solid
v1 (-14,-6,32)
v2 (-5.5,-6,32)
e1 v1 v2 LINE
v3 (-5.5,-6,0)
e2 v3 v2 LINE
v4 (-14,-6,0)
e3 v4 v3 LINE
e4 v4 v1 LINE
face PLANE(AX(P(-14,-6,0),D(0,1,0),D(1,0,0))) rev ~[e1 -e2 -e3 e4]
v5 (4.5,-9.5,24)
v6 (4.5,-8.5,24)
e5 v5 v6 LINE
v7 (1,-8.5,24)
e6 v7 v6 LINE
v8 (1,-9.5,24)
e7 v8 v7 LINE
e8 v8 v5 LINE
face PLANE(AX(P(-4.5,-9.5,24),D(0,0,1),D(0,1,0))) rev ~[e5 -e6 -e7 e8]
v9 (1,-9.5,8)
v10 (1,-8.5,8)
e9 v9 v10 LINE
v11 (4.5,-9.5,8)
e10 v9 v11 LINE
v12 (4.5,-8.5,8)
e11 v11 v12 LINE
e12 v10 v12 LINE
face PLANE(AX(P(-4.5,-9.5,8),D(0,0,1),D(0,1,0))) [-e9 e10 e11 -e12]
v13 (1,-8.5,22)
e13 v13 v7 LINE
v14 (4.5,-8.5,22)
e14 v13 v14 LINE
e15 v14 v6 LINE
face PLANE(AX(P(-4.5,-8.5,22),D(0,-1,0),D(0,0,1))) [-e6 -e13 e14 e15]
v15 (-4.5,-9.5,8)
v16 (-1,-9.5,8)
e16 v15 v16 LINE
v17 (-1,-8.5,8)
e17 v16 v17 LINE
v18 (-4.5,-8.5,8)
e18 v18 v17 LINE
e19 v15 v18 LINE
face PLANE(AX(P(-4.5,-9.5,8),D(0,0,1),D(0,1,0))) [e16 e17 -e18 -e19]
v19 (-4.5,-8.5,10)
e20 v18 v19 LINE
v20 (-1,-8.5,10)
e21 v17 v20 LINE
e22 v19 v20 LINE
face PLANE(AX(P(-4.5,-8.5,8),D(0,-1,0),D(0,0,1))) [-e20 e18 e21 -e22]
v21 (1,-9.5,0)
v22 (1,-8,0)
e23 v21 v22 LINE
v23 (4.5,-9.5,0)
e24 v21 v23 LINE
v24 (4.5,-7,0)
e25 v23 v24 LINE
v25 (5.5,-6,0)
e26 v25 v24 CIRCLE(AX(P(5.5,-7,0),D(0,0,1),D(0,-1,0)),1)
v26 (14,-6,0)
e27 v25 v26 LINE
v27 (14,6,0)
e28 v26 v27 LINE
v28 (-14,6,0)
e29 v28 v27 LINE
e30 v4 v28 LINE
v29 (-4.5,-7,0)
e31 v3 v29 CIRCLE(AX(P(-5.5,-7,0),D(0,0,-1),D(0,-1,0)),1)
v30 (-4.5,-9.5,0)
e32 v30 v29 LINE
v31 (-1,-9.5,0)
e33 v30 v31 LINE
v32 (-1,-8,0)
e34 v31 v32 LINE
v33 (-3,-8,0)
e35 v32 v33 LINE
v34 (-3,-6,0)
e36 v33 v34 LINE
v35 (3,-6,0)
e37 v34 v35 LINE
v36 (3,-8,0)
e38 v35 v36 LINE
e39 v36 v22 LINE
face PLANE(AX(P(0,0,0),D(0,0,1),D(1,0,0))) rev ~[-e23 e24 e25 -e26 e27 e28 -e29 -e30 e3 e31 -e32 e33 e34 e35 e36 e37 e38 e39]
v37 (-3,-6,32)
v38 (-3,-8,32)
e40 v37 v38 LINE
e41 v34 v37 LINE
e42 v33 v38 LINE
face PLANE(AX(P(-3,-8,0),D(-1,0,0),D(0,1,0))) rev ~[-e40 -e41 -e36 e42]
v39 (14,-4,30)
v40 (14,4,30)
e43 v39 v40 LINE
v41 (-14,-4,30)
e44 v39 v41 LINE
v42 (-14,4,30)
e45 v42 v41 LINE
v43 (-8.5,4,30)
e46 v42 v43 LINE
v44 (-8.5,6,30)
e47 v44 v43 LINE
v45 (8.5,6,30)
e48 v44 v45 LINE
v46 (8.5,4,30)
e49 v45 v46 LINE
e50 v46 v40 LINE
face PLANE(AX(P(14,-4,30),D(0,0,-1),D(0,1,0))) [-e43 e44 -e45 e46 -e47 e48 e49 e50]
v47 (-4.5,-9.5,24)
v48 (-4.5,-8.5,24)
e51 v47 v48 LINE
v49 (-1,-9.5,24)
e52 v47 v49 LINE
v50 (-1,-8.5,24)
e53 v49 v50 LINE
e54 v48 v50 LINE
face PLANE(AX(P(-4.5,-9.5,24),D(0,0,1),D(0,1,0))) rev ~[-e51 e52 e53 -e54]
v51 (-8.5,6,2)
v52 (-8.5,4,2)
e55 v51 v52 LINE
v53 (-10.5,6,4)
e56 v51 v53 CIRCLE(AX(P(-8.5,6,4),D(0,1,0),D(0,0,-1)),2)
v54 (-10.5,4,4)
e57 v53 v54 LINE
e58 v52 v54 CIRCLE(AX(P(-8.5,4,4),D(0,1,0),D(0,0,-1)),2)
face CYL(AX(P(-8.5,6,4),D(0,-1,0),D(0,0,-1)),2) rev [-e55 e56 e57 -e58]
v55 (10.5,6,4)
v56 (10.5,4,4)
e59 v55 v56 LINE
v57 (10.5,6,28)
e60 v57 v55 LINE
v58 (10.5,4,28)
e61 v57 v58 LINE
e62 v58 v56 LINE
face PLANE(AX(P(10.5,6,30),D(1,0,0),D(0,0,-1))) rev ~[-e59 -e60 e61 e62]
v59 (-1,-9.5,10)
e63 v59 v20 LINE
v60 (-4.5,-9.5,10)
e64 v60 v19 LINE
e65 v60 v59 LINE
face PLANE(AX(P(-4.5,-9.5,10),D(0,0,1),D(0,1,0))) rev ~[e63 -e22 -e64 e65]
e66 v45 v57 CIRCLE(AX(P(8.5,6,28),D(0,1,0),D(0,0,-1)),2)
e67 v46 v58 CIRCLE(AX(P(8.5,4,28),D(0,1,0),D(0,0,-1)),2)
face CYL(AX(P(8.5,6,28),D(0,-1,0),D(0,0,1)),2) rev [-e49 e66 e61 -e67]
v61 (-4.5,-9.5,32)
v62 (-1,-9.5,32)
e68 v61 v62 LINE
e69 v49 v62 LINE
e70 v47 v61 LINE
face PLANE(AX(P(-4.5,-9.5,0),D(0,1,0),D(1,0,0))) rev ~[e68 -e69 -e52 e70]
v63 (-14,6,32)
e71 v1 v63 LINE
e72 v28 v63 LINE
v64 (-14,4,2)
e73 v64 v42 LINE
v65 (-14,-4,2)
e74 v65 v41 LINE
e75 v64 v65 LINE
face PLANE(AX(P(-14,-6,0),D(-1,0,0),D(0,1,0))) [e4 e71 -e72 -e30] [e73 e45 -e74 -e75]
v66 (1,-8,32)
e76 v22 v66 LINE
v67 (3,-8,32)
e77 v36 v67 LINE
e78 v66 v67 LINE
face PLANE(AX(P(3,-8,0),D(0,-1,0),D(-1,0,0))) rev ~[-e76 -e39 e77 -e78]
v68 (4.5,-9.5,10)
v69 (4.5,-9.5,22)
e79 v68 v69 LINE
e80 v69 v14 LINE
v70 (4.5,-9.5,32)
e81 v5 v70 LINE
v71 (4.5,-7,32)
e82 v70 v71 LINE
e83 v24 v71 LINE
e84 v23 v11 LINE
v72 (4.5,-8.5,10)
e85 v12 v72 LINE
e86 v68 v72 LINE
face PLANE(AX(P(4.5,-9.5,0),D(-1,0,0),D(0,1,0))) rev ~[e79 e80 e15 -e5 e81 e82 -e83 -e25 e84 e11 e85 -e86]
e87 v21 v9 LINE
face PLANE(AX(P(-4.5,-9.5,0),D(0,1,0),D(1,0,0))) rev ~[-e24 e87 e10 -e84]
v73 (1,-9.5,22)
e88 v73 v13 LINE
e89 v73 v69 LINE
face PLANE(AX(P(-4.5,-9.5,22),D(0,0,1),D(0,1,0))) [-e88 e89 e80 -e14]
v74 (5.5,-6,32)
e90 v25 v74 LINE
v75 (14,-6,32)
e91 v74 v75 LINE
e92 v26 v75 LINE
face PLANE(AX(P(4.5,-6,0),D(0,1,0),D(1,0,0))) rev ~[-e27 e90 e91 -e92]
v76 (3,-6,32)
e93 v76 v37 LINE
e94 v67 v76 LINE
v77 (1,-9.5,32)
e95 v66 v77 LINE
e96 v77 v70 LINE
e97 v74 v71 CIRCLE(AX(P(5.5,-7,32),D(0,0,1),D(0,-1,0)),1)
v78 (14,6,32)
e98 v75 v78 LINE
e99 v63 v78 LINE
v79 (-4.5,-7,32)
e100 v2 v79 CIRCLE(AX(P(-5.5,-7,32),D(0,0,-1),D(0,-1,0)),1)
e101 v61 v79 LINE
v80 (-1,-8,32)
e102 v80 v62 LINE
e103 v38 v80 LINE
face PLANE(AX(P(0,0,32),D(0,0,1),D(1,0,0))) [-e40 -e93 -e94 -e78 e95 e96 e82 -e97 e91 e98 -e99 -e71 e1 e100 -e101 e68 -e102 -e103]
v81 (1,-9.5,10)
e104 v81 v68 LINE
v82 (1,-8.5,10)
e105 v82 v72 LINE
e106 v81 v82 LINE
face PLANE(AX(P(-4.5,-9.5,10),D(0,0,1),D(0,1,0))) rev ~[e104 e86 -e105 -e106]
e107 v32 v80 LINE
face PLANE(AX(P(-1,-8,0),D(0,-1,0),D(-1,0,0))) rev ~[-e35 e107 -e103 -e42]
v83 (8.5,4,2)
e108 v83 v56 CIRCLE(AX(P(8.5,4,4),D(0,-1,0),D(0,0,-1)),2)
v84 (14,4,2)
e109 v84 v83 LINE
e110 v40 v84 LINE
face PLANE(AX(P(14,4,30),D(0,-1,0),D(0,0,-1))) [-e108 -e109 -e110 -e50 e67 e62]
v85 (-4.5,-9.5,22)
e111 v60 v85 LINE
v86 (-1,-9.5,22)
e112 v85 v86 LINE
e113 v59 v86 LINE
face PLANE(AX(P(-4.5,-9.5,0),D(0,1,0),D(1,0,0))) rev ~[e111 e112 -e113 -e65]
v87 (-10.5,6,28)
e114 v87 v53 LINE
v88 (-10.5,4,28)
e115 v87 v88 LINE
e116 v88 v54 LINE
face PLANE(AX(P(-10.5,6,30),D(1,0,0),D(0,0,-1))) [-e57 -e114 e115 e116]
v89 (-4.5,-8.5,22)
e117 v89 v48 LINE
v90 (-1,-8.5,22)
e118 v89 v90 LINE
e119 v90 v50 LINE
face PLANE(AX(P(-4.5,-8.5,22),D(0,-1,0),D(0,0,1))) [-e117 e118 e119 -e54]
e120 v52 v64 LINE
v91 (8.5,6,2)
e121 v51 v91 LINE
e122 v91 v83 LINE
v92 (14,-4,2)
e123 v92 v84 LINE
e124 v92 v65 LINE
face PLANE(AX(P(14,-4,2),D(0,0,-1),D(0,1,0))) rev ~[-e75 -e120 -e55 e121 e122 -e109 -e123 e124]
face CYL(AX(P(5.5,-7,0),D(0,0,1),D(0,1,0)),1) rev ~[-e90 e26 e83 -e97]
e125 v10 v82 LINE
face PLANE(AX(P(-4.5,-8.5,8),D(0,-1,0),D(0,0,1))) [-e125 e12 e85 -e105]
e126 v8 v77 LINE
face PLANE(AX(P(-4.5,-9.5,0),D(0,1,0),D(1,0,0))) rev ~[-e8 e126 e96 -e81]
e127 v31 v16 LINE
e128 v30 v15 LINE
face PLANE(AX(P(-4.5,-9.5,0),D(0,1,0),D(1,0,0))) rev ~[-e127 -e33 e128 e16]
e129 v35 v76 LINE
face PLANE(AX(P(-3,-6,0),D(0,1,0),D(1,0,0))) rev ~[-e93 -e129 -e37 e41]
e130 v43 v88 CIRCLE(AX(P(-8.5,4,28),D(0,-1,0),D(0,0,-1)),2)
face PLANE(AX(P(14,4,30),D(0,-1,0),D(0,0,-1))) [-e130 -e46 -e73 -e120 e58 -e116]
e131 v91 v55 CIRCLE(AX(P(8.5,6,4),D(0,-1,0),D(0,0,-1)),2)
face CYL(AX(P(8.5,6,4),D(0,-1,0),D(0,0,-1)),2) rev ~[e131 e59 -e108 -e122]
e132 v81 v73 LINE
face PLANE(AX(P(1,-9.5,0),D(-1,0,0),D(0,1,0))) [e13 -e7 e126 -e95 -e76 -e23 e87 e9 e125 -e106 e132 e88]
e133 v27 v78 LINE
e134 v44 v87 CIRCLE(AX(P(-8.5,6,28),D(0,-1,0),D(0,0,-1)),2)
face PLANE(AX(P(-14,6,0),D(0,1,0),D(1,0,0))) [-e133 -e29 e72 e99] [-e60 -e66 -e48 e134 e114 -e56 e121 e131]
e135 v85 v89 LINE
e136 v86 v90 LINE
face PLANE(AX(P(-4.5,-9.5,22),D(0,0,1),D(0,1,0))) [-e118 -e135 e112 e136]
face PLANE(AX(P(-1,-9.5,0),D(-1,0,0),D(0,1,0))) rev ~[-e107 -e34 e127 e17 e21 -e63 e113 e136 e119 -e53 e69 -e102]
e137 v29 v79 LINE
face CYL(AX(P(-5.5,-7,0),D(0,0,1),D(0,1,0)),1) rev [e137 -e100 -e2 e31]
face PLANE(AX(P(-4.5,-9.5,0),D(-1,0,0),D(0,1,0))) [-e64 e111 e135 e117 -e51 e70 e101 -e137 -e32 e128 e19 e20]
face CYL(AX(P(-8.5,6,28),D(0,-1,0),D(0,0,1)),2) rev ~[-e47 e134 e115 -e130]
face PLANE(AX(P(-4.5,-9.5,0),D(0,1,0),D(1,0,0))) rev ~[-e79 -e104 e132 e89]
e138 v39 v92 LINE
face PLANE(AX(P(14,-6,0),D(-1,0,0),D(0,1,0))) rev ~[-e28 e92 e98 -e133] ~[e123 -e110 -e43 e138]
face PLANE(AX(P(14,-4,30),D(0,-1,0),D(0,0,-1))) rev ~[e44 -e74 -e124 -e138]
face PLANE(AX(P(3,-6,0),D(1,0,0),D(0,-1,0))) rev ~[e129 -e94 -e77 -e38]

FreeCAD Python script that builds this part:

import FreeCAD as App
import Part
import Sketcher
Q = App.Units.Quantity


def edges_at(feature, points):
    """Names of the edges that pass closest to the given points."""
    edges = feature.Shape.Edges
    near = lambda p: min(range(len(edges)), key=lambda i: edges[i].distToShape(Part.Vertex(*p))[0])
    return sorted({f"Edge{near(p) + 1}" for p in points})


def add_polygon(sketch, points):
    """Adds a closed chain of lines whose ends are joined by coincident constraints."""
    first, n = sketch.GeometryCount, len(points)
    for a, b in zip(points, points[1:] + points[:1]):
        sketch.addGeometry(Part.LineSegment(App.Vector(*a, 0), App.Vector(*b, 0)), False)
    for i in range(n):
        sketch.addConstraint(Sketcher.Constraint("Coincident", first + i, 2, first + (i + 1) % n, 1))

doc = App.newDocument("Part")
body = doc.addObject("PartDesign::Body", "Body")

# Sketch on XY plane
sketch1 = doc.addObject("Sketcher::SketchObject", "Sketch")
body.addObject(sketch1)
sketch1.AttachmentSupport = (doc.XY_Plane, [""])
sketch1.MapMode = "FlatFace"
add_polygon(sketch1, [(-14, 6), (-14, -6), (-4.5, -6), (-4.5, -9.5), (4.5, -9.5), (4.5, -6), (14, -6), (14, 6)])  # lines 0-7
sketch1.addConstraint([
    Sketcher.Constraint("Vertical", 0),
    Sketcher.Constraint("Horizontal", 1),
    Sketcher.Constraint("Vertical", 2),
    Sketcher.Constraint("Horizontal", 3),
    Sketcher.Constraint("Vertical", 4),
    Sketcher.Constraint("Horizontal", 5),
    Sketcher.Constraint("Vertical", 6),
    Sketcher.Constraint("Horizontal", 7),
    Sketcher.Constraint("Symmetric", 0, 2, 6, 2, -1, 1),
    Sketcher.Constraint("Symmetric", 1, 2, 4, 2, -2),
    Sketcher.Constraint("DistanceX", 3, 1, 3, 2, Q("9 mm")),
    Sketcher.Constraint("DistanceX", 7, 2, 7, 1, Q("28 mm")),
    Sketcher.Constraint("DistanceY", 0, 2, 0, 1, Q("12 mm")),
    Sketcher.Constraint("DistanceY", 2, 2, 2, 1, Q("3.5 mm")),
])
pad1 = doc.addObject("PartDesign::Pad", "Pad")
body.addObject(pad1)
pad1.Profile = sketch1
pad1.Length = 32

# Sketch on XY plane
sketch2 = doc.addObject("Sketcher::SketchObject", "Sketch001")
body.addObject(sketch2)
sketch2.AttachmentSupport = (doc.XY_Plane, [""])
sketch2.MapMode = "FlatFace"
add_polygon(sketch2, [(3, -6), (3, -8), (1, -8), (1, -9.5), (-1, -9.5), (-1, -8), (-3, -8), (-3, -6)])  # lines 0-7
sketch2.addConstraint([
    Sketcher.Constraint("Vertical", 0),
    Sketcher.Constraint("Horizontal", 1),
    Sketcher.Constraint("Vertical", 2),
    Sketcher.Constraint("Horizontal", 3),
    Sketcher.Constraint("Vertical", 4),
    Sketcher.Constraint("Horizontal", 5),
    Sketcher.Constraint("Vertical", 6),
    Sketcher.Constraint("Horizontal", 7),
    Sketcher.Constraint("Symmetric", 1, 2, 4, 2, -2),
    Sketcher.Constraint("Equal", 1, 3),
    Sketcher.Constraint("Equal", 3, 5),
    Sketcher.Constraint("Equal", 5, 0),
    Sketcher.Constraint("DistanceX", 1, 2, 1, 1, Q("2 mm")),
    Sketcher.Constraint("DistanceY", 2, 2, 2, 1, Q("1.5 mm")),
    Sketcher.Constraint("DistanceY", 0, 2, -1, 1, Q("8 mm")),
])
pocket1 = doc.addObject("PartDesign::Pocket", "Pocket")
body.addObject(pocket1)
pocket1.Profile = sketch2
pocket1.Type = "ThroughAll"
pocket1.Reversed = True

# Sketch on YZ plane
sketch3 = doc.addObject("Sketcher::SketchObject", "Sketch002")
body.addObject(sketch3)
sketch3.AttachmentSupport = (doc.YZ_Plane, [""])
sketch3.MapMode = "FlatFace"
sketch3.AttachmentOffset = App.Placement(App.Vector(0, 0, -4.5), App.Rotation())
add_polygon(sketch3, [(-8.5, 8), (-9.5, 8), (-9.5, 10), (-8.5, 10)])  # lines 0-3
add_polygon(sketch3, [(-8.5, 22), (-9.5, 22), (-9.5, 24), (-8.5, 24)])  # lines 4-7
sketch3.addConstraint([
    Sketcher.Constraint("Horizontal", 0),
    Sketcher.Constraint("Vertical", 1),
    Sketcher.Constraint("Horizontal", 2),
    Sketcher.Constraint("Vertical", 3),
    Sketcher.Constraint("Horizontal", 4),
    Sketcher.Constraint("Vertical", 5),
    Sketcher.Constraint("Horizontal", 6),
    Sketcher.Constraint("Vertical", 7),
    Sketcher.Constraint("Vertical", 1, 2, 4, 2),
    Sketcher.Constraint("Vertical", 3, 2, 6, 2),
    Sketcher.Constraint("Equal", 3, 5),
    Sketcher.Constraint("DistanceX", 0, 2, 0, 1, Q("1 mm")),
    Sketcher.Constraint("DistanceY", 1, 1, 1, 2, Q("2 mm")),
    Sketcher.Constraint("DistanceY", -1, 1, 0, 2, Q("8 mm")),
    Sketcher.Constraint("DistanceY", -1, 1, 4, 2, Q("22 mm")),
    Sketcher.Constraint("DistanceX", 0, 2, -1, 1, Q("9.5 mm")),
])
pocket2 = doc.addObject("PartDesign::Pocket", "Pocket001")
body.addObject(pocket2)
pocket2.Profile = sketch3
pocket2.Type = "ThroughAll"
pocket2.Reversed = True
doc.recompute()

fillet = doc.addObject("PartDesign::Fillet", "Fillet")
body.addObject(fillet)
fillet.Base = (pocket2, edges_at(pocket2, [(4.5, -6, 16), (-4.5, -6, 16)]))
fillet.Radius = 1

# Sketch on YZ plane
sketch4 = doc.addObject("Sketcher::SketchObject", "Sketch003")
body.addObject(sketch4)
sketch4.AttachmentSupport = (doc.YZ_Plane, [""])
sketch4.MapMode = "FlatFace"
sketch4.AttachmentOffset = App.Placement(App.Vector(0, 0, 14), App.Rotation())
add_polygon(sketch4, [(4, 30), (-4, 30), (-4, 2), (4, 2)])  # lines 0-3
sketch4.addConstraint([
    Sketcher.Constraint("Horizontal", 0),
    Sketcher.Constraint("Vertical", 1),
    Sketcher.Constraint("Horizontal", 2),
    Sketcher.Constraint("Vertical", 3),
    Sketcher.Constraint("DistanceX", 0, 2, 0, 1, Q("8 mm")),
    Sketcher.Constraint("DistanceY", 1, 2, 1, 1, Q("28 mm")),
    Sketcher.Constraint("DistanceX", 0, 2, -1, 1, Q("4 mm")),
    Sketcher.Constraint("DistanceY", -1, 1, 0, 2, Q("30 mm")),
])
pocket3 = doc.addObject("PartDesign::Pocket", "Pocket002")
body.addObject(pocket3)
pocket3.Profile = sketch4
pocket3.Type = "ThroughAll"

# Sketch on XZ plane
sketch5 = doc.addObject("Sketcher::SketchObject", "Sketch004")
body.addObject(sketch5)
sketch5.AttachmentSupport = (doc.XZ_Plane, [""])
sketch5.MapMode = "FlatFace"
sketch5.AttachmentOffset = App.Placement(App.Vector(0, 0, -6), App.Rotation())
add_polygon(sketch5, [(-10, 2), (-10, 30), (10, 30), (10, 2)])  # lines 0-3
sketch5.addConstraint([
    Sketcher.Constraint("Vertical", 0),
    Sketcher.Constraint("Horizontal", 1),
    Sketcher.Constraint("Vertical", 2),
    Sketcher.Constraint("Horizontal", 3),
    Sketcher.Constraint("DistanceX", 1, 1, 1, 2, Q("21 mm")),
    Sketcher.Constraint("DistanceY", 0, 1, 0, 2, Q("28 mm")),
    Sketcher.Constraint("DistanceY", -1, 1, 0, 2, Q("30 mm")),
    Sketcher.Constraint("DistanceX", 0, 2, -1, 1, Q("10.5 mm")),
])
pocket4 = doc.addObject("PartDesign::Pocket", "Pocket003")
body.addObject(pocket4)
pocket4.Profile = sketch5
pocket4.Type = "UpToFirst"
pocket4.Reversed = True
doc.recompute()

fillet2 = doc.addObject("PartDesign::Fillet", "Fillet001")
body.addObject(fillet2)
fillet2.Base = (pocket4, edges_at(pocket4, [
    (10.5, 5, 30),
    (10.5, 5, 2),
    (-10.5, 5, 2),
    (-10.5, 5, 30),
]))
fillet2.Radius = 2

doc.recompute()
